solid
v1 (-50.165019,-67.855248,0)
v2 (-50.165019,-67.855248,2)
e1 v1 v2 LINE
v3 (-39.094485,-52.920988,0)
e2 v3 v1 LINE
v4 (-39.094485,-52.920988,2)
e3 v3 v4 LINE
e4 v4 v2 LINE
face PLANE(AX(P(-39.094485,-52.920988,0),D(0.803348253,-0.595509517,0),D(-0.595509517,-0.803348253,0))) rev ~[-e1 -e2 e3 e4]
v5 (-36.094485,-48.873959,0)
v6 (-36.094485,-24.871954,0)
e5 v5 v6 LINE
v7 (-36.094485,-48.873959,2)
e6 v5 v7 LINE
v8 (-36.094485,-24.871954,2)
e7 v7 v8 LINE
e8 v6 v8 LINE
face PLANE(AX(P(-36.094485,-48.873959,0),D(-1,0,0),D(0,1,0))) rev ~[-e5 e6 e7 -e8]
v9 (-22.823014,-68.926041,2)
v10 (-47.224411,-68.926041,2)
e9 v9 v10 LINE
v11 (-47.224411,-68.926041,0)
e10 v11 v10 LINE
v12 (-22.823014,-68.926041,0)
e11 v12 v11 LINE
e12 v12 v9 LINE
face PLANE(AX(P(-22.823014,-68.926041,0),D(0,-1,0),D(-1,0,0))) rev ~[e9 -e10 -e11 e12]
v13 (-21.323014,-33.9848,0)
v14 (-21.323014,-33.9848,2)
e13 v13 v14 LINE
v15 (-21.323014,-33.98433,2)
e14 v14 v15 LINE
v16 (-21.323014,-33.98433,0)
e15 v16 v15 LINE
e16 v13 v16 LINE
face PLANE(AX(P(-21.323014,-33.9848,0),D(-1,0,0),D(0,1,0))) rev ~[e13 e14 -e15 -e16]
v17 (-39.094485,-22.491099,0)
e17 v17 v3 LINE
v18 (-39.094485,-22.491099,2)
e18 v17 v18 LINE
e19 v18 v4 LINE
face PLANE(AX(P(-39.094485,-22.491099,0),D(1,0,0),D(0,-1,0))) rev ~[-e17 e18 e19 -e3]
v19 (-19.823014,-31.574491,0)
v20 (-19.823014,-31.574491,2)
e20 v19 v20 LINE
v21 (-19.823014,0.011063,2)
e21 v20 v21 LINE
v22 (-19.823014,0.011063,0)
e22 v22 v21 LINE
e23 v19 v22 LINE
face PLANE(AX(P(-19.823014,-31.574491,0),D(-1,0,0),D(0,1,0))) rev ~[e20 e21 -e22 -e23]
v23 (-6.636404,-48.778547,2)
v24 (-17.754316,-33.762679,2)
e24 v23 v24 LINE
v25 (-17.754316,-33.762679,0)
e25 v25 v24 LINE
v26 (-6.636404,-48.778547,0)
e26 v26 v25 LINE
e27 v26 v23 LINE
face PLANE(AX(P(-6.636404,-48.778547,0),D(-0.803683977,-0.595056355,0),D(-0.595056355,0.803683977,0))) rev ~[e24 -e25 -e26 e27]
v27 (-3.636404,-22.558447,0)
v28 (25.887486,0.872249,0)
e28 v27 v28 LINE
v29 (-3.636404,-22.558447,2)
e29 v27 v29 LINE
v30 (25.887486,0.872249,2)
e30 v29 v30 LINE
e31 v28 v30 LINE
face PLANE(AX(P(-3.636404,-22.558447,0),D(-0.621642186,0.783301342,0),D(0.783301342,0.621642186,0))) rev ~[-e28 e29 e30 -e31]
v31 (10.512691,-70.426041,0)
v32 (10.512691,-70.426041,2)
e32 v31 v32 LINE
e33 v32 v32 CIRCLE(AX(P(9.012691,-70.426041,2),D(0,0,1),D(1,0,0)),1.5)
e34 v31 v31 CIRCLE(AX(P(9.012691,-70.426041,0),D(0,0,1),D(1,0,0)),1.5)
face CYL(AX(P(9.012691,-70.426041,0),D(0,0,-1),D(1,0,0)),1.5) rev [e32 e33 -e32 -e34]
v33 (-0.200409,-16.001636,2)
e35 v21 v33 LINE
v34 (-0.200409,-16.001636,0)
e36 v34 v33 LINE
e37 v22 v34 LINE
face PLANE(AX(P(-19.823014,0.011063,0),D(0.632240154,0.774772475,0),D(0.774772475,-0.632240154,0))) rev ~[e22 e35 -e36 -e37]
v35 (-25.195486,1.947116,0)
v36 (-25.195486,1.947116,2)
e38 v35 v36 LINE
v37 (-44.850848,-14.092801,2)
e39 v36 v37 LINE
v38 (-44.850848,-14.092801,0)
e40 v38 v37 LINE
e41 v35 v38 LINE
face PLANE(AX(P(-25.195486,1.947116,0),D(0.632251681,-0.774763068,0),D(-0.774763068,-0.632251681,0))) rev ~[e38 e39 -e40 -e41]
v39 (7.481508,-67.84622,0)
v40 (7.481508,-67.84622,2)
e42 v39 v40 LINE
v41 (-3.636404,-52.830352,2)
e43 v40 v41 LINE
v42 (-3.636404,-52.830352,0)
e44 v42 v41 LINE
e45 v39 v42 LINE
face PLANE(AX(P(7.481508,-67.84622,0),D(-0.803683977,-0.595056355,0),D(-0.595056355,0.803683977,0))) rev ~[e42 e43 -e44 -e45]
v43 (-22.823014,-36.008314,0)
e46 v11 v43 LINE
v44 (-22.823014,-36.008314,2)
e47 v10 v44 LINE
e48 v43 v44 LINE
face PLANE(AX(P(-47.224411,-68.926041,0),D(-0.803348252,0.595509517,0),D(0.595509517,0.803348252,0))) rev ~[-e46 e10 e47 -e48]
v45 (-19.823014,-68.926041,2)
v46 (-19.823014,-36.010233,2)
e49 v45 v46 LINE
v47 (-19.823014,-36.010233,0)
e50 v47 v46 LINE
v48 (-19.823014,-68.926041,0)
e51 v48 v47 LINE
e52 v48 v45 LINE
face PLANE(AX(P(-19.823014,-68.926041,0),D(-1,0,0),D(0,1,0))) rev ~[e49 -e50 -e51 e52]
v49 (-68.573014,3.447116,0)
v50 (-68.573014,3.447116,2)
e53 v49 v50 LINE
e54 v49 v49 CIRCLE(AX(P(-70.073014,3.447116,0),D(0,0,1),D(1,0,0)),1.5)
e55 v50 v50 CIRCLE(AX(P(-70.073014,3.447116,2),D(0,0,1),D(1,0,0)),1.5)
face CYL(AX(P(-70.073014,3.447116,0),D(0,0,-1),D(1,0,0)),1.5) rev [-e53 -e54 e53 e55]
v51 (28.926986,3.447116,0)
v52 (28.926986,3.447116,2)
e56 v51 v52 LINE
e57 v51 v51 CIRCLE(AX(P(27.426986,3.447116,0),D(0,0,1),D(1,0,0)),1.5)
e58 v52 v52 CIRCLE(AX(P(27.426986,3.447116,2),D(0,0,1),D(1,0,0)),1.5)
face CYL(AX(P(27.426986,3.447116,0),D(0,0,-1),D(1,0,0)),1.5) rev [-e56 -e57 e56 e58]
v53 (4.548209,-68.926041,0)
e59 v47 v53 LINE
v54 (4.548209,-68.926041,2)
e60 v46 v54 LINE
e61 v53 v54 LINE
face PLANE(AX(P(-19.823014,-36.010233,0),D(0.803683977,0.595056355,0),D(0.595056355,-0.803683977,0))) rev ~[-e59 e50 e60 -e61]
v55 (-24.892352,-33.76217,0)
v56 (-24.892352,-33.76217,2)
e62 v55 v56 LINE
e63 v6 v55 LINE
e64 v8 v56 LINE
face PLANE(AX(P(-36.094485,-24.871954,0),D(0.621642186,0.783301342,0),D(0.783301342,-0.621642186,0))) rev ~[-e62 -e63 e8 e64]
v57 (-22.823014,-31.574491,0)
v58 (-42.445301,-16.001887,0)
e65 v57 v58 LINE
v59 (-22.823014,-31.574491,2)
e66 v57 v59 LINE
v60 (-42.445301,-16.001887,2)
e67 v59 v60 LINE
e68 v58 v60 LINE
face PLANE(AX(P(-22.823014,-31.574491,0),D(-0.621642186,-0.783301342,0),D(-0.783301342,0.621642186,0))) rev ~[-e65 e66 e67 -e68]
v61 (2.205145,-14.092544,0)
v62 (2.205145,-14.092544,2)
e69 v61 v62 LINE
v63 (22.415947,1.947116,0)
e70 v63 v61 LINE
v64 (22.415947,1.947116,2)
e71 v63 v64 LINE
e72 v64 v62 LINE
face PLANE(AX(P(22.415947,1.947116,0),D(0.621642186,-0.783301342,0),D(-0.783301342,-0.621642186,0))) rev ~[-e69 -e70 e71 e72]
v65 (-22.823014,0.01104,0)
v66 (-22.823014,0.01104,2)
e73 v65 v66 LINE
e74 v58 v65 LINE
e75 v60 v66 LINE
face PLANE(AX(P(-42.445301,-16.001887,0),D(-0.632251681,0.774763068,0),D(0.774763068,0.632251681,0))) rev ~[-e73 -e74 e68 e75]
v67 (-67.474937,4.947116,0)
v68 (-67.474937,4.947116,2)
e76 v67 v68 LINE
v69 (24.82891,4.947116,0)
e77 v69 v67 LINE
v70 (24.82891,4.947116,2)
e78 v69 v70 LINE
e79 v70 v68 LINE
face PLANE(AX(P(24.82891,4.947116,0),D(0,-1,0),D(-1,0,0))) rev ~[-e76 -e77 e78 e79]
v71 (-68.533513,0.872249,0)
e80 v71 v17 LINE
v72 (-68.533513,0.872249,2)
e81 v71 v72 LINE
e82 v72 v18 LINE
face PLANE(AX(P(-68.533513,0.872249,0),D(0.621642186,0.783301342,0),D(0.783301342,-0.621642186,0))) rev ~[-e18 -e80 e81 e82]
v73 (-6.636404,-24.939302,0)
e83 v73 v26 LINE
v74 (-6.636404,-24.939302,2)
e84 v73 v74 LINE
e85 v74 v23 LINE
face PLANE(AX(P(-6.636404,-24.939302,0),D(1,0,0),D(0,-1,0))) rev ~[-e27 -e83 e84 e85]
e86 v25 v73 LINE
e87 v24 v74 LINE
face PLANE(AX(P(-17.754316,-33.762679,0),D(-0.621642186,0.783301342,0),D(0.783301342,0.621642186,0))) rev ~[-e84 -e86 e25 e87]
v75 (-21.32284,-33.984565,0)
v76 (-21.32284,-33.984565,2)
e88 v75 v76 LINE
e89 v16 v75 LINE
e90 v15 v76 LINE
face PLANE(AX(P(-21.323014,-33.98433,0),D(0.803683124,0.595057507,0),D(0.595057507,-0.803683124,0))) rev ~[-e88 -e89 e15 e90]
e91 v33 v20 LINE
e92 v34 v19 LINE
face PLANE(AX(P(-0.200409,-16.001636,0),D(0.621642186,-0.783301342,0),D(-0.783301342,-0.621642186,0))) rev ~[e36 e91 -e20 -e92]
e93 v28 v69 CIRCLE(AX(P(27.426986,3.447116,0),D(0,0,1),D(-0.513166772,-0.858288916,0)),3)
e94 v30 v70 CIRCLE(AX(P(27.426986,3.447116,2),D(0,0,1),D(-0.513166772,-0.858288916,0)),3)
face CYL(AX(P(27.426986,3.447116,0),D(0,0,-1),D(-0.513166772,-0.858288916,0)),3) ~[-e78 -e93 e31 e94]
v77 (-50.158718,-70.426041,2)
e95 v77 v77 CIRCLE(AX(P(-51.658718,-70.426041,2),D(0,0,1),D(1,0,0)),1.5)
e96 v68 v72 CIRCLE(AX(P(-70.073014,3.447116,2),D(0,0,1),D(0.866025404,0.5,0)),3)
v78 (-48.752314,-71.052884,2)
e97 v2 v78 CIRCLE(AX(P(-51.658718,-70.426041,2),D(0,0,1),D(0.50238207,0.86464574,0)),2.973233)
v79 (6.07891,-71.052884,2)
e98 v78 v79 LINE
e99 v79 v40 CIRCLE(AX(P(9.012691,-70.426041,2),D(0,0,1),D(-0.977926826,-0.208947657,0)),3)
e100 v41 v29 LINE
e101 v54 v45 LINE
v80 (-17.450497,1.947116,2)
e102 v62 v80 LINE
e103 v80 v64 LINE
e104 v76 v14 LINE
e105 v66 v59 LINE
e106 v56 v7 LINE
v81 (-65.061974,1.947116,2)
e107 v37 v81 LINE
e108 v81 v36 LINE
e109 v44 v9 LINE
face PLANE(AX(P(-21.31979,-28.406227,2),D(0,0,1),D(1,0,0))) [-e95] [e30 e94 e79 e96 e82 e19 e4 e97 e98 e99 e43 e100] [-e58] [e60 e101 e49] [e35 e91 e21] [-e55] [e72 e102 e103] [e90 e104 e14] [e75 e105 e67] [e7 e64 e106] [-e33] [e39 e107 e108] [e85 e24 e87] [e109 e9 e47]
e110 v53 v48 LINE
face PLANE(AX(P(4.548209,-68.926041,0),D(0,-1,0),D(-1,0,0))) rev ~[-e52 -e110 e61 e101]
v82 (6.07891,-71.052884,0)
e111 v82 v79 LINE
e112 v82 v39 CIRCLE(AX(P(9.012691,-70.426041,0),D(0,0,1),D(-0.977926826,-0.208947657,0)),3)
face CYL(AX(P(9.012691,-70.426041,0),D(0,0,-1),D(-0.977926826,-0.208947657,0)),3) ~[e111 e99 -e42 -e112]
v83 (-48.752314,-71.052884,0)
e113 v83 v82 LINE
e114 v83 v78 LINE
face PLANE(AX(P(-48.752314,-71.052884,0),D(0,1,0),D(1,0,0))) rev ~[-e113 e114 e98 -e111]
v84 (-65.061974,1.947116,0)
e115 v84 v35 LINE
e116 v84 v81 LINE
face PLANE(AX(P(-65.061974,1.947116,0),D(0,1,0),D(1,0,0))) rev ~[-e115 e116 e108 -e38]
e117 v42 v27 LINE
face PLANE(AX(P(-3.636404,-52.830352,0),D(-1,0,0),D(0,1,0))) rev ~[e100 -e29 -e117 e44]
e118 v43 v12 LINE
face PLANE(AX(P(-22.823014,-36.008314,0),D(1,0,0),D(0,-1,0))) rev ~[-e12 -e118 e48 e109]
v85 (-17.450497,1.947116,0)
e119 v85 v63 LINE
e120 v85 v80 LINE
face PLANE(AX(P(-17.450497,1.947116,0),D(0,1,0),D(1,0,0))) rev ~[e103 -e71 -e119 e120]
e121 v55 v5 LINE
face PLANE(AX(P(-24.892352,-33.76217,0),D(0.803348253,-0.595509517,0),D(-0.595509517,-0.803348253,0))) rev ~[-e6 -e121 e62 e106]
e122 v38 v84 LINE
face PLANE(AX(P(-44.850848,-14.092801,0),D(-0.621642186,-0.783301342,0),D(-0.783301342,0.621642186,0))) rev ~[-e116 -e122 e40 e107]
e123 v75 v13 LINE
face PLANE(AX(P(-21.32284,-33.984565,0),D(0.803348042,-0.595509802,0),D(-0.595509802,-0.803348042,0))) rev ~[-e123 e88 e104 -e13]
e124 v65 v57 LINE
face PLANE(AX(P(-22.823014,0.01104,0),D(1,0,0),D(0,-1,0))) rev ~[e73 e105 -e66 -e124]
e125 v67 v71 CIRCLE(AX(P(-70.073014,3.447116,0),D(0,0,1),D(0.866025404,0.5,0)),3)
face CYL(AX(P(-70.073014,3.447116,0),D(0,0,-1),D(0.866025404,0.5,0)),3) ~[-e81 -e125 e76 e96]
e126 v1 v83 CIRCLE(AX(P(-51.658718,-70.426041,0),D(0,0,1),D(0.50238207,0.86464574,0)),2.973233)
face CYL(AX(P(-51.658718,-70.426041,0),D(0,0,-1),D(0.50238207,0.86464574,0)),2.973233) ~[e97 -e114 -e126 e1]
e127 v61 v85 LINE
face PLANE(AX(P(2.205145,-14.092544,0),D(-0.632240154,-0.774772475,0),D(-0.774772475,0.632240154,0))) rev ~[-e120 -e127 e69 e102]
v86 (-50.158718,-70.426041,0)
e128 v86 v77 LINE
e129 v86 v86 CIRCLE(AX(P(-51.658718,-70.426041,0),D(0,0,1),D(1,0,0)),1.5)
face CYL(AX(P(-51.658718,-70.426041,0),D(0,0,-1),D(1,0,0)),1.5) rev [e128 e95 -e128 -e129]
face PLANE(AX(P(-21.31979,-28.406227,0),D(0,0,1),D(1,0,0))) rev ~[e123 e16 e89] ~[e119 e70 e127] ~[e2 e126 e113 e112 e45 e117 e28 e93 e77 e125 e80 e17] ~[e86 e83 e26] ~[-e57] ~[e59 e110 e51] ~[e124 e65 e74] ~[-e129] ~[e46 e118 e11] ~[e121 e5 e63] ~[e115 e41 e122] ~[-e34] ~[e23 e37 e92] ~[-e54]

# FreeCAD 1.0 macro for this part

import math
import FreeCAD as App
import Part
import Sketcher

V = App.Vector
Q = App.Units.Quantity


def add_polygon(sketch, points):
    """Adds a closed chain of lines whose ends are joined by coincident constraints."""
    first, n = sketch.GeometryCount, len(points)
    for a, b in zip(points, points[1:] + points[:1]):
        sketch.addGeometry(Part.LineSegment(App.Vector(*a, 0), App.Vector(*b, 0)), False)
    for i in range(n):
        sketch.addConstraint(Sketcher.Constraint("Coincident", first + i, 2, first + (i + 1) % n, 1))

doc = App.newDocument("Part")
body = doc.addObject("PartDesign::Body", "Body")

# Sketch on XY plane
sketch1 = body.newObject("Sketcher::SketchObject", "Sketch")
sketch1.AttachmentSupport = (doc.getObject("XY_Plane"), [""])
sketch1.MapMode = "FlatFace"
sketch1.addGeometry(Part.LineSegment(V(24.82891, 4.947116, 0), V(-67.474937, 4.947116, 0)), False)  # 0
sketch1.addGeometry(Part.ArcOfCircle(Part.Circle(V(-70.073014, 3.447116, 0), V(0, 0, 1), 3), math.radians(30), math.radians(300.874998)), False)  # 1
sketch1.addGeometry(Part.LineSegment(V(-68.533513, 0.872249, 0), V(-39.094485, -22.491099, 0)), False)  # 2
sketch1.addGeometry(Part.LineSegment(V(-39.094485, -22.491099, 0), V(-39.094485, -52.920988, 0)), False)  # 3
sketch1.addGeometry(Part.LineSegment(V(-39.094485, -52.920988, 0), V(-50.165019, -67.855248, 0)), False)  # 4
sketch1.addGeometry(Part.ArcOfCircle(Part.Circle(V(-51.658718, -70.426041, 0), V(0, 0, 1), 2.973233), math.radians(59.842278), math.radians(347.829077)), False)  # 5
sketch1.addGeometry(Part.LineSegment(V(-48.752314, -71.052884, 0), V(6.07891, -71.052884, 0)), False)  # 6
sketch1.addGeometry(Part.ArcOfCircle(Part.Circle(V(9.012691, -70.426041, 0), V(0, 0, 1), 3), math.radians(-167.939311), math.radians(120.690092)), False)  # 7
sketch1.addGeometry(Part.LineSegment(V(7.481508, -67.84622, 0), V(-3.636404, -52.830352, 0)), False)  # 8
sketch1.addGeometry(Part.LineSegment(V(-3.636404, -52.830352, 0), V(-3.636404, -22.558447, 0)), False)  # 9
sketch1.addGeometry(Part.LineSegment(V(-3.636404, -22.558447, 0), V(25.887486, 0.872249, 0)), False)  # 10
sketch1.addGeometry(Part.ArcOfCircle(Part.Circle(V(27.426986, 3.447116, 0), V(0, 0, 1), 3), math.radians(-120.874998), math.radians(150)), False)  # 11
sketch1.addGeometry(Part.Circle(V(-51.658718, -70.426041, 0), V(0, 0, 1), 1.5), False)  # 12
add_polygon(sketch1, [(-47.224411, -68.926041), (-22.823014, -36.008314), (-22.823014, -68.926041)])  # lines 13-15
add_polygon(sketch1, [(-36.094485, -48.873959), (-36.094485, -24.871954), (-24.892352, -33.76217)])  # lines 16-18
sketch1.addGeometry(Part.Circle(V(9.012691, -70.426041, 0), V(0, 0, 1), 1.5), False)  # 19
add_polygon(sketch1, [(-19.823014, -68.926041), (-19.823014, -36.010233), (4.548209, -68.926041)])  # lines 20-22
add_polygon(sketch1, [(-21.323014, -33.9848), (-21.323014, -33.98433), (-21.32284, -33.984565)])  # lines 23-25
add_polygon(sketch1, [(-17.754316, -33.762679), (-6.636404, -24.939302), (-6.636404, -48.778547)])  # lines 26-28
add_polygon(sketch1, [(-22.823014, -31.574491), (-42.445301, -16.001887), (-22.823014, 0.01104)])  # lines 29-31
sketch1.addGeometry(Part.Circle(V(-70.073014, 3.447116, 0), V(0, 0, 1), 1.5), False)  # 32
add_polygon(sketch1, [(-44.850848, -14.092801), (-65.061974, 1.947116), (-25.195486, 1.947116)])  # lines 33-35
add_polygon(sketch1, [(-0.200409, -16.001636), (-19.823014, -31.574491), (-19.823014, 0.011063)])  # lines 36-38
add_polygon(sketch1, [(22.415947, 1.947116), (2.205145, -14.092544), (-17.450497, 1.947116)])  # lines 39-41
sketch1.addGeometry(Part.Circle(V(27.426986, 3.447116, 0), V(0, 0, 1), 1.5), False)  # 42
sketch1.addConstraint(Sketcher.Constraint("Coincident", 0, 2, 1, 1))
sketch1.addConstraint(Sketcher.Constraint("Coincident", 1, 2, 2, 1))
sketch1.addConstraint(Sketcher.Constraint("Coincident", 2, 2, 3, 1))
sketch1.addConstraint(Sketcher.Constraint("Coincident", 3, 2, 4, 1))
sketch1.addConstraint(Sketcher.Constraint("Coincident", 4, 2, 5, 1))
sketch1.addConstraint(Sketcher.Constraint("Coincident", 5, 2, 6, 1))
sketch1.addConstraint(Sketcher.Constraint("Coincident", 6, 2, 7, 1))
sketch1.addConstraint(Sketcher.Constraint("Coincident", 7, 2, 8, 1))
sketch1.addConstraint(Sketcher.Constraint("Coincident", 8, 2, 9, 1))
sketch1.addConstraint(Sketcher.Constraint("Coincident", 9, 2, 10, 1))
sketch1.addConstraint(Sketcher.Constraint("Coincident", 10, 2, 11, 1))
sketch1.addConstraint(Sketcher.Constraint("Coincident", 11, 2, 0, 1))
sketch1.addConstraint(Sketcher.Constraint("Horizontal", 0))
sketch1.addConstraint(Sketcher.Constraint("Vertical", 3))
sketch1.addConstraint(Sketcher.Constraint("Horizontal", 6))
sketch1.addConstraint(Sketcher.Constraint("Vertical", 9))
sketch1.addConstraint(Sketcher.Constraint("Vertical", 14))
sketch1.addConstraint(Sketcher.Constraint("Horizontal", 15))
sketch1.addConstraint(Sketcher.Constraint("Vertical", 16))
sketch1.addConstraint(Sketcher.Constraint("Vertical", 20))
sketch1.addConstraint(Sketcher.Constraint("Horizontal", 22))
sketch1.addConstraint(Sketcher.Constraint("Vertical", 23))
sketch1.addConstraint(Sketcher.Constraint("Vertical", 27))
sketch1.addConstraint(Sketcher.Constraint("Vertical", 31))
sketch1.addConstraint(Sketcher.Constraint("Horizontal", 34))
sketch1.addConstraint(Sketcher.Constraint("Vertical", 37))
sketch1.addConstraint(Sketcher.Constraint("Horizontal", 41))
sketch1.addConstraint(Sketcher.Constraint("Coincident", 12, 3, 5, 3))
sketch1.addConstraint(Sketcher.Constraint("Coincident", 19, 3, 7, 3))
sketch1.addConstraint(Sketcher.Constraint("Coincident", 32, 3, 1, 3))
sketch1.addConstraint(Sketcher.Constraint("Coincident", 42, 3, 11, 3))
sketch1.addConstraint(Sketcher.Constraint("Equal", 1, 7))
sketch1.addConstraint(Sketcher.Constraint("Equal", 7, 11))
sketch1.addConstraint(Sketcher.Constraint("Equal", 12, 19))
sketch1.addConstraint(Sketcher.Constraint("Equal", 19, 32))
sketch1.addConstraint(Sketcher.Constraint("Equal", 32, 42))
sketch1.addConstraint(Sketcher.Constraint("Parallel", 4, 13))
sketch1.addConstraint(Sketcher.Constraint("Parallel", 2, 17))
sketch1.addConstraint(Sketcher.Constraint("Parallel", 13, 18))
sketch1.addConstraint(Sketcher.Constraint("Parallel", 8, 21))
sketch1.addConstraint(Sketcher.Constraint("Parallel", 21, 24))
sketch1.addConstraint(Sketcher.Constraint("Parallel", 18, 25))
sketch1.addConstraint(Sketcher.Constraint("Parallel", 10, 26))
sketch1.addConstraint(Sketcher.Constraint("Parallel", 21, 28))
sketch1.addConstraint(Sketcher.Constraint("Parallel", 17, 29))
sketch1.addConstraint(Sketcher.Constraint("Parallel", 29, 33))
sketch1.addConstraint(Sketcher.Constraint("Parallel", 30, 35))
sketch1.addConstraint(Sketcher.Constraint("Parallel", 26, 36))
sketch1.addConstraint(Sketcher.Constraint("Parallel", 36, 39))
sketch1.addConstraint(Sketcher.Constraint("Parallel", 38, 40))
sketch1.addConstraint(Sketcher.Constraint("Horizontal", 5, 3, 7, 3))
sketch1.addConstraint(Sketcher.Constraint("Horizontal", 1, 3, 11, 3))
sketch1.addConstraint(Sketcher.Constraint("Horizontal", 1, 2, 10, 2))
sketch1.addConstraint(Sketcher.Constraint("Horizontal", 15, 2, 21, 2))
sketch1.addConstraint(Sketcher.Constraint("Horizontal", 31, 2, 36, 2))
sketch1.addConstraint(Sketcher.Constraint("Horizontal", 34, 2, 40, 2))
sketch1.addConstraint(Sketcher.Constraint("Vertical", 14, 2, 30, 2))
sketch1.addConstraint(Sketcher.Constraint("Vertical", 22, 2, 36, 2))
sketch1.addConstraint(Sketcher.Constraint("Equal", 8, 28))
sketch1.addConstraint(Sketcher.Constraint("Diameter", 12, Q("3 mm")))
sketch1.addConstraint(Sketcher.Constraint("Radius", 1, Q("3 mm")))
sketch1.addConstraint(Sketcher.Constraint("DistanceX", 2, 2, 16, 2, Q("3 mm")))
sketch1.addConstraint(Sketcher.Constraint("DistanceX", 13, 2, 20, 2, Q("3 mm")))
sketch1.addConstraint(Sketcher.Constraint("DistanceX", 26, 2, 9, 2, Q("3 mm")))
sketch1.addConstraint(Sketcher.Constraint("DistanceY", 33, 2, 0, 2, Q("3 mm")))
sketch1.addConstraint(Sketcher.Constraint("DistanceX", 1, 3, 11, 3, Q("97.5 mm")))
sketch1.addConstraint(Sketcher.Constraint("DistanceY", 1, 3, 0, 2, Q("1.5 mm")))
sketch1.addConstraint(Sketcher.Constraint("DistanceY", 5, 3, 14, 2, Q("1.5 mm")))
sketch1.addConstraint(Sketcher.Constraint("DistanceX", 13, 2, 23, 2, Q("1.5 mm")))
sketch1.addConstraint(Sketcher.Constraint("Radius", 5, Q("2.973233 mm")))
sketch1.addConstraint(Sketcher.Constraint("DistanceX", 2, 2, 34, 2, Q("13.898999 mm")))
sketch1.addConstraint(Sketcher.Constraint("DistanceY", 3, 2, 3, 1, Q("30.429889 mm")))
sketch1.addConstraint(Sketcher.Constraint("DistanceY", 20, 1, 20, 2, Q("32.915809 mm")))
sketch1.addConstraint(Sketcher.Constraint("DistanceY", 23, 1, 23, 2, Q("0.000469 mm")))
sketch1.addConstraint(Sketcher.Constraint("DistanceY", 31, 2, 31, 1, Q("31.585531 mm")))
sketch1.addConstraint(Sketcher.Constraint("DistanceY", 2, 2, -1, 1, Q("22.491099 mm")))
sketch1.addConstraint(Sketcher.Constraint("DistanceY", 25, 2, -1, 1, Q("33.9848 mm")))
sketch1.addConstraint(Sketcher.Constraint("DistanceY", 26, 2, -1, 1, Q("24.939302 mm")))
sketch1.addConstraint(Sketcher.Constraint("DistanceX", 29, 2, -1, 1, Q("42.445301 mm")))
sketch1.addConstraint(Sketcher.Constraint("DistanceY", 35, 2, -1, 1, Q("14.092801 mm")))
sketch1.addConstraint(Sketcher.Constraint("DistanceX", 1, 3, 1, 2, Q("1.5395 mm")))
sketch1.addConstraint(Sketcher.Constraint("DistanceX", 5, 3, 4, 2, Q("1.493699 mm")))
sketch1.addConstraint(Sketcher.Constraint("DistanceY", 8, 2, 10, 2, Q("53.7026 mm")))
sketch1.addConstraint(Sketcher.Constraint("DistanceX", 5, 2, 14, 2, Q("25.929301 mm")))
sketch1.addConstraint(Sketcher.Constraint("DistanceX", 21, 2, 6, 2, Q("1.530701 mm")))
sketch1.addConstraint(Sketcher.Constraint("DistanceX", 21, 2, 7, 2, Q("2.933299 mm")))
sketch1.addConstraint(Sketcher.Constraint("DistanceY", 38, 2, 37, 2, Q("16.012699 mm")))
sketch1.addConstraint(Sketcher.Constraint("DistanceX", 39, 2, 41, 2, Q("20.210801 mm")))
sketch1.addConstraint(Sketcher.Constraint("Distance", 4, Q("18.59002 mm")))
sketch1.addConstraint(Sketcher.Constraint("Distance", 10, Q("37.691612 mm")))
sketch1.addConstraint(Sketcher.Constraint("Distance", 17, Q("14.301179 mm")))
sketch1.addConstraint(Sketcher.Constraint("Distance", 21, Q("40.956159 mm")))
sketch1.addConstraint(Sketcher.Constraint("Distance", 26, Q("14.193659 mm")))
sketch1.addConstraint(Sketcher.Constraint("Distance", 29, Q("25.050752 mm")))
sketch1.addConstraint(Sketcher.Constraint("Distance", 33, Q("25.802491 mm")))
sketch1.addConstraint(Sketcher.Constraint("DistanceX", 15, 2, 15, 1, Q("24.401397 mm")))
sketch1.addConstraint(Sketcher.Constraint("DistanceX", 34, 1, 34, 2, Q("39.866487 mm")))
sketch1.addConstraint(Sketcher.Constraint("DistanceX", 41, 1, 41, 2, Q("39.866444 mm")))
sketch1.addConstraint(Sketcher.Constraint("DistanceY", 9, 1, 9, 2, Q("30.271904 mm")))
sketch1.addConstraint(Sketcher.Constraint("DistanceY", 17, 2, -1, 1, Q("33.76217 mm")))
sketch1.addConstraint(Sketcher.Constraint("DistanceY", -1, 1, 30, 2, Q("0.01104 mm")))
sketch1.addConstraint(Sketcher.Constraint("DistanceX", 9, 2, 39, 2, Q("5.841549 mm")))
pad1 = body.newObject("PartDesign::Pad", "Pad")
pad1.Profile = sketch1
pad1.Length = 2

doc.recompute()
